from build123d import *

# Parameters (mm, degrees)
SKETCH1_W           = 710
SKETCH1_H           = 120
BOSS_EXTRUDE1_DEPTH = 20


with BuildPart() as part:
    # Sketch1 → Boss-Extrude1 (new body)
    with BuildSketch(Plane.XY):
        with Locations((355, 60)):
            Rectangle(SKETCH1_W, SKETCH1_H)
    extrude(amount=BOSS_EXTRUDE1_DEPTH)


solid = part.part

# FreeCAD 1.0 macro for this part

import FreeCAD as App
import Part
import Sketcher

V = App.Vector
Q = App.Units.Quantity


def add_polygon(sketch, points):
    """Adds a closed chain of lines whose ends are joined by coincident constraints."""
    first, n = sketch.GeometryCount, len(points)
    for a, b in zip(points, points[1:] + points[:1]):
        sketch.addGeometry(Part.LineSegment(App.Vector(*a, 0), App.Vector(*b, 0)), False)
    for i in range(n):
        sketch.addConstraint(Sketcher.Constraint("Coincident", first + i, 2, first + (i + 1) % n, 1))

doc = App.newDocument("Part")
body = doc.addObject("PartDesign::Body", "Body")

# Sketch on XY plane
sketch1 = body.newObject("Sketcher::SketchObject", "Sketch")
sketch1.AttachmentSupport = (doc.getObject("XY_Plane"), [""])
sketch1.MapMode = "FlatFace"
add_polygon(sketch1, [(0, 120), (0, 0), (710, 0), (710, 120)])  # lines 0-3
sketch1.addConstraint(Sketcher.Constraint("Vertical", 0))
sketch1.addConstraint(Sketcher.Constraint("Horizontal", 1))
sketch1.addConstraint(Sketcher.Constraint("Vertical", 2))
sketch1.addConstraint(Sketcher.Constraint("Horizontal", 3))
sketch1.addConstraint(Sketcher.Constraint("Coincident", 0, 2, -1, 1))
sketch1.addConstraint(Sketcher.Constraint("DistanceX", 1, 1, 1, 2, Q("710 mm")))
sketch1.addConstraint(Sketcher.Constraint("DistanceY", 0, 2, 0, 1, Q("120 mm")))
pad1 = body.newObject("PartDesign::Pad", "Pad")
pad1.Profile = sketch1
pad1.Length = 20

doc.recompute()
